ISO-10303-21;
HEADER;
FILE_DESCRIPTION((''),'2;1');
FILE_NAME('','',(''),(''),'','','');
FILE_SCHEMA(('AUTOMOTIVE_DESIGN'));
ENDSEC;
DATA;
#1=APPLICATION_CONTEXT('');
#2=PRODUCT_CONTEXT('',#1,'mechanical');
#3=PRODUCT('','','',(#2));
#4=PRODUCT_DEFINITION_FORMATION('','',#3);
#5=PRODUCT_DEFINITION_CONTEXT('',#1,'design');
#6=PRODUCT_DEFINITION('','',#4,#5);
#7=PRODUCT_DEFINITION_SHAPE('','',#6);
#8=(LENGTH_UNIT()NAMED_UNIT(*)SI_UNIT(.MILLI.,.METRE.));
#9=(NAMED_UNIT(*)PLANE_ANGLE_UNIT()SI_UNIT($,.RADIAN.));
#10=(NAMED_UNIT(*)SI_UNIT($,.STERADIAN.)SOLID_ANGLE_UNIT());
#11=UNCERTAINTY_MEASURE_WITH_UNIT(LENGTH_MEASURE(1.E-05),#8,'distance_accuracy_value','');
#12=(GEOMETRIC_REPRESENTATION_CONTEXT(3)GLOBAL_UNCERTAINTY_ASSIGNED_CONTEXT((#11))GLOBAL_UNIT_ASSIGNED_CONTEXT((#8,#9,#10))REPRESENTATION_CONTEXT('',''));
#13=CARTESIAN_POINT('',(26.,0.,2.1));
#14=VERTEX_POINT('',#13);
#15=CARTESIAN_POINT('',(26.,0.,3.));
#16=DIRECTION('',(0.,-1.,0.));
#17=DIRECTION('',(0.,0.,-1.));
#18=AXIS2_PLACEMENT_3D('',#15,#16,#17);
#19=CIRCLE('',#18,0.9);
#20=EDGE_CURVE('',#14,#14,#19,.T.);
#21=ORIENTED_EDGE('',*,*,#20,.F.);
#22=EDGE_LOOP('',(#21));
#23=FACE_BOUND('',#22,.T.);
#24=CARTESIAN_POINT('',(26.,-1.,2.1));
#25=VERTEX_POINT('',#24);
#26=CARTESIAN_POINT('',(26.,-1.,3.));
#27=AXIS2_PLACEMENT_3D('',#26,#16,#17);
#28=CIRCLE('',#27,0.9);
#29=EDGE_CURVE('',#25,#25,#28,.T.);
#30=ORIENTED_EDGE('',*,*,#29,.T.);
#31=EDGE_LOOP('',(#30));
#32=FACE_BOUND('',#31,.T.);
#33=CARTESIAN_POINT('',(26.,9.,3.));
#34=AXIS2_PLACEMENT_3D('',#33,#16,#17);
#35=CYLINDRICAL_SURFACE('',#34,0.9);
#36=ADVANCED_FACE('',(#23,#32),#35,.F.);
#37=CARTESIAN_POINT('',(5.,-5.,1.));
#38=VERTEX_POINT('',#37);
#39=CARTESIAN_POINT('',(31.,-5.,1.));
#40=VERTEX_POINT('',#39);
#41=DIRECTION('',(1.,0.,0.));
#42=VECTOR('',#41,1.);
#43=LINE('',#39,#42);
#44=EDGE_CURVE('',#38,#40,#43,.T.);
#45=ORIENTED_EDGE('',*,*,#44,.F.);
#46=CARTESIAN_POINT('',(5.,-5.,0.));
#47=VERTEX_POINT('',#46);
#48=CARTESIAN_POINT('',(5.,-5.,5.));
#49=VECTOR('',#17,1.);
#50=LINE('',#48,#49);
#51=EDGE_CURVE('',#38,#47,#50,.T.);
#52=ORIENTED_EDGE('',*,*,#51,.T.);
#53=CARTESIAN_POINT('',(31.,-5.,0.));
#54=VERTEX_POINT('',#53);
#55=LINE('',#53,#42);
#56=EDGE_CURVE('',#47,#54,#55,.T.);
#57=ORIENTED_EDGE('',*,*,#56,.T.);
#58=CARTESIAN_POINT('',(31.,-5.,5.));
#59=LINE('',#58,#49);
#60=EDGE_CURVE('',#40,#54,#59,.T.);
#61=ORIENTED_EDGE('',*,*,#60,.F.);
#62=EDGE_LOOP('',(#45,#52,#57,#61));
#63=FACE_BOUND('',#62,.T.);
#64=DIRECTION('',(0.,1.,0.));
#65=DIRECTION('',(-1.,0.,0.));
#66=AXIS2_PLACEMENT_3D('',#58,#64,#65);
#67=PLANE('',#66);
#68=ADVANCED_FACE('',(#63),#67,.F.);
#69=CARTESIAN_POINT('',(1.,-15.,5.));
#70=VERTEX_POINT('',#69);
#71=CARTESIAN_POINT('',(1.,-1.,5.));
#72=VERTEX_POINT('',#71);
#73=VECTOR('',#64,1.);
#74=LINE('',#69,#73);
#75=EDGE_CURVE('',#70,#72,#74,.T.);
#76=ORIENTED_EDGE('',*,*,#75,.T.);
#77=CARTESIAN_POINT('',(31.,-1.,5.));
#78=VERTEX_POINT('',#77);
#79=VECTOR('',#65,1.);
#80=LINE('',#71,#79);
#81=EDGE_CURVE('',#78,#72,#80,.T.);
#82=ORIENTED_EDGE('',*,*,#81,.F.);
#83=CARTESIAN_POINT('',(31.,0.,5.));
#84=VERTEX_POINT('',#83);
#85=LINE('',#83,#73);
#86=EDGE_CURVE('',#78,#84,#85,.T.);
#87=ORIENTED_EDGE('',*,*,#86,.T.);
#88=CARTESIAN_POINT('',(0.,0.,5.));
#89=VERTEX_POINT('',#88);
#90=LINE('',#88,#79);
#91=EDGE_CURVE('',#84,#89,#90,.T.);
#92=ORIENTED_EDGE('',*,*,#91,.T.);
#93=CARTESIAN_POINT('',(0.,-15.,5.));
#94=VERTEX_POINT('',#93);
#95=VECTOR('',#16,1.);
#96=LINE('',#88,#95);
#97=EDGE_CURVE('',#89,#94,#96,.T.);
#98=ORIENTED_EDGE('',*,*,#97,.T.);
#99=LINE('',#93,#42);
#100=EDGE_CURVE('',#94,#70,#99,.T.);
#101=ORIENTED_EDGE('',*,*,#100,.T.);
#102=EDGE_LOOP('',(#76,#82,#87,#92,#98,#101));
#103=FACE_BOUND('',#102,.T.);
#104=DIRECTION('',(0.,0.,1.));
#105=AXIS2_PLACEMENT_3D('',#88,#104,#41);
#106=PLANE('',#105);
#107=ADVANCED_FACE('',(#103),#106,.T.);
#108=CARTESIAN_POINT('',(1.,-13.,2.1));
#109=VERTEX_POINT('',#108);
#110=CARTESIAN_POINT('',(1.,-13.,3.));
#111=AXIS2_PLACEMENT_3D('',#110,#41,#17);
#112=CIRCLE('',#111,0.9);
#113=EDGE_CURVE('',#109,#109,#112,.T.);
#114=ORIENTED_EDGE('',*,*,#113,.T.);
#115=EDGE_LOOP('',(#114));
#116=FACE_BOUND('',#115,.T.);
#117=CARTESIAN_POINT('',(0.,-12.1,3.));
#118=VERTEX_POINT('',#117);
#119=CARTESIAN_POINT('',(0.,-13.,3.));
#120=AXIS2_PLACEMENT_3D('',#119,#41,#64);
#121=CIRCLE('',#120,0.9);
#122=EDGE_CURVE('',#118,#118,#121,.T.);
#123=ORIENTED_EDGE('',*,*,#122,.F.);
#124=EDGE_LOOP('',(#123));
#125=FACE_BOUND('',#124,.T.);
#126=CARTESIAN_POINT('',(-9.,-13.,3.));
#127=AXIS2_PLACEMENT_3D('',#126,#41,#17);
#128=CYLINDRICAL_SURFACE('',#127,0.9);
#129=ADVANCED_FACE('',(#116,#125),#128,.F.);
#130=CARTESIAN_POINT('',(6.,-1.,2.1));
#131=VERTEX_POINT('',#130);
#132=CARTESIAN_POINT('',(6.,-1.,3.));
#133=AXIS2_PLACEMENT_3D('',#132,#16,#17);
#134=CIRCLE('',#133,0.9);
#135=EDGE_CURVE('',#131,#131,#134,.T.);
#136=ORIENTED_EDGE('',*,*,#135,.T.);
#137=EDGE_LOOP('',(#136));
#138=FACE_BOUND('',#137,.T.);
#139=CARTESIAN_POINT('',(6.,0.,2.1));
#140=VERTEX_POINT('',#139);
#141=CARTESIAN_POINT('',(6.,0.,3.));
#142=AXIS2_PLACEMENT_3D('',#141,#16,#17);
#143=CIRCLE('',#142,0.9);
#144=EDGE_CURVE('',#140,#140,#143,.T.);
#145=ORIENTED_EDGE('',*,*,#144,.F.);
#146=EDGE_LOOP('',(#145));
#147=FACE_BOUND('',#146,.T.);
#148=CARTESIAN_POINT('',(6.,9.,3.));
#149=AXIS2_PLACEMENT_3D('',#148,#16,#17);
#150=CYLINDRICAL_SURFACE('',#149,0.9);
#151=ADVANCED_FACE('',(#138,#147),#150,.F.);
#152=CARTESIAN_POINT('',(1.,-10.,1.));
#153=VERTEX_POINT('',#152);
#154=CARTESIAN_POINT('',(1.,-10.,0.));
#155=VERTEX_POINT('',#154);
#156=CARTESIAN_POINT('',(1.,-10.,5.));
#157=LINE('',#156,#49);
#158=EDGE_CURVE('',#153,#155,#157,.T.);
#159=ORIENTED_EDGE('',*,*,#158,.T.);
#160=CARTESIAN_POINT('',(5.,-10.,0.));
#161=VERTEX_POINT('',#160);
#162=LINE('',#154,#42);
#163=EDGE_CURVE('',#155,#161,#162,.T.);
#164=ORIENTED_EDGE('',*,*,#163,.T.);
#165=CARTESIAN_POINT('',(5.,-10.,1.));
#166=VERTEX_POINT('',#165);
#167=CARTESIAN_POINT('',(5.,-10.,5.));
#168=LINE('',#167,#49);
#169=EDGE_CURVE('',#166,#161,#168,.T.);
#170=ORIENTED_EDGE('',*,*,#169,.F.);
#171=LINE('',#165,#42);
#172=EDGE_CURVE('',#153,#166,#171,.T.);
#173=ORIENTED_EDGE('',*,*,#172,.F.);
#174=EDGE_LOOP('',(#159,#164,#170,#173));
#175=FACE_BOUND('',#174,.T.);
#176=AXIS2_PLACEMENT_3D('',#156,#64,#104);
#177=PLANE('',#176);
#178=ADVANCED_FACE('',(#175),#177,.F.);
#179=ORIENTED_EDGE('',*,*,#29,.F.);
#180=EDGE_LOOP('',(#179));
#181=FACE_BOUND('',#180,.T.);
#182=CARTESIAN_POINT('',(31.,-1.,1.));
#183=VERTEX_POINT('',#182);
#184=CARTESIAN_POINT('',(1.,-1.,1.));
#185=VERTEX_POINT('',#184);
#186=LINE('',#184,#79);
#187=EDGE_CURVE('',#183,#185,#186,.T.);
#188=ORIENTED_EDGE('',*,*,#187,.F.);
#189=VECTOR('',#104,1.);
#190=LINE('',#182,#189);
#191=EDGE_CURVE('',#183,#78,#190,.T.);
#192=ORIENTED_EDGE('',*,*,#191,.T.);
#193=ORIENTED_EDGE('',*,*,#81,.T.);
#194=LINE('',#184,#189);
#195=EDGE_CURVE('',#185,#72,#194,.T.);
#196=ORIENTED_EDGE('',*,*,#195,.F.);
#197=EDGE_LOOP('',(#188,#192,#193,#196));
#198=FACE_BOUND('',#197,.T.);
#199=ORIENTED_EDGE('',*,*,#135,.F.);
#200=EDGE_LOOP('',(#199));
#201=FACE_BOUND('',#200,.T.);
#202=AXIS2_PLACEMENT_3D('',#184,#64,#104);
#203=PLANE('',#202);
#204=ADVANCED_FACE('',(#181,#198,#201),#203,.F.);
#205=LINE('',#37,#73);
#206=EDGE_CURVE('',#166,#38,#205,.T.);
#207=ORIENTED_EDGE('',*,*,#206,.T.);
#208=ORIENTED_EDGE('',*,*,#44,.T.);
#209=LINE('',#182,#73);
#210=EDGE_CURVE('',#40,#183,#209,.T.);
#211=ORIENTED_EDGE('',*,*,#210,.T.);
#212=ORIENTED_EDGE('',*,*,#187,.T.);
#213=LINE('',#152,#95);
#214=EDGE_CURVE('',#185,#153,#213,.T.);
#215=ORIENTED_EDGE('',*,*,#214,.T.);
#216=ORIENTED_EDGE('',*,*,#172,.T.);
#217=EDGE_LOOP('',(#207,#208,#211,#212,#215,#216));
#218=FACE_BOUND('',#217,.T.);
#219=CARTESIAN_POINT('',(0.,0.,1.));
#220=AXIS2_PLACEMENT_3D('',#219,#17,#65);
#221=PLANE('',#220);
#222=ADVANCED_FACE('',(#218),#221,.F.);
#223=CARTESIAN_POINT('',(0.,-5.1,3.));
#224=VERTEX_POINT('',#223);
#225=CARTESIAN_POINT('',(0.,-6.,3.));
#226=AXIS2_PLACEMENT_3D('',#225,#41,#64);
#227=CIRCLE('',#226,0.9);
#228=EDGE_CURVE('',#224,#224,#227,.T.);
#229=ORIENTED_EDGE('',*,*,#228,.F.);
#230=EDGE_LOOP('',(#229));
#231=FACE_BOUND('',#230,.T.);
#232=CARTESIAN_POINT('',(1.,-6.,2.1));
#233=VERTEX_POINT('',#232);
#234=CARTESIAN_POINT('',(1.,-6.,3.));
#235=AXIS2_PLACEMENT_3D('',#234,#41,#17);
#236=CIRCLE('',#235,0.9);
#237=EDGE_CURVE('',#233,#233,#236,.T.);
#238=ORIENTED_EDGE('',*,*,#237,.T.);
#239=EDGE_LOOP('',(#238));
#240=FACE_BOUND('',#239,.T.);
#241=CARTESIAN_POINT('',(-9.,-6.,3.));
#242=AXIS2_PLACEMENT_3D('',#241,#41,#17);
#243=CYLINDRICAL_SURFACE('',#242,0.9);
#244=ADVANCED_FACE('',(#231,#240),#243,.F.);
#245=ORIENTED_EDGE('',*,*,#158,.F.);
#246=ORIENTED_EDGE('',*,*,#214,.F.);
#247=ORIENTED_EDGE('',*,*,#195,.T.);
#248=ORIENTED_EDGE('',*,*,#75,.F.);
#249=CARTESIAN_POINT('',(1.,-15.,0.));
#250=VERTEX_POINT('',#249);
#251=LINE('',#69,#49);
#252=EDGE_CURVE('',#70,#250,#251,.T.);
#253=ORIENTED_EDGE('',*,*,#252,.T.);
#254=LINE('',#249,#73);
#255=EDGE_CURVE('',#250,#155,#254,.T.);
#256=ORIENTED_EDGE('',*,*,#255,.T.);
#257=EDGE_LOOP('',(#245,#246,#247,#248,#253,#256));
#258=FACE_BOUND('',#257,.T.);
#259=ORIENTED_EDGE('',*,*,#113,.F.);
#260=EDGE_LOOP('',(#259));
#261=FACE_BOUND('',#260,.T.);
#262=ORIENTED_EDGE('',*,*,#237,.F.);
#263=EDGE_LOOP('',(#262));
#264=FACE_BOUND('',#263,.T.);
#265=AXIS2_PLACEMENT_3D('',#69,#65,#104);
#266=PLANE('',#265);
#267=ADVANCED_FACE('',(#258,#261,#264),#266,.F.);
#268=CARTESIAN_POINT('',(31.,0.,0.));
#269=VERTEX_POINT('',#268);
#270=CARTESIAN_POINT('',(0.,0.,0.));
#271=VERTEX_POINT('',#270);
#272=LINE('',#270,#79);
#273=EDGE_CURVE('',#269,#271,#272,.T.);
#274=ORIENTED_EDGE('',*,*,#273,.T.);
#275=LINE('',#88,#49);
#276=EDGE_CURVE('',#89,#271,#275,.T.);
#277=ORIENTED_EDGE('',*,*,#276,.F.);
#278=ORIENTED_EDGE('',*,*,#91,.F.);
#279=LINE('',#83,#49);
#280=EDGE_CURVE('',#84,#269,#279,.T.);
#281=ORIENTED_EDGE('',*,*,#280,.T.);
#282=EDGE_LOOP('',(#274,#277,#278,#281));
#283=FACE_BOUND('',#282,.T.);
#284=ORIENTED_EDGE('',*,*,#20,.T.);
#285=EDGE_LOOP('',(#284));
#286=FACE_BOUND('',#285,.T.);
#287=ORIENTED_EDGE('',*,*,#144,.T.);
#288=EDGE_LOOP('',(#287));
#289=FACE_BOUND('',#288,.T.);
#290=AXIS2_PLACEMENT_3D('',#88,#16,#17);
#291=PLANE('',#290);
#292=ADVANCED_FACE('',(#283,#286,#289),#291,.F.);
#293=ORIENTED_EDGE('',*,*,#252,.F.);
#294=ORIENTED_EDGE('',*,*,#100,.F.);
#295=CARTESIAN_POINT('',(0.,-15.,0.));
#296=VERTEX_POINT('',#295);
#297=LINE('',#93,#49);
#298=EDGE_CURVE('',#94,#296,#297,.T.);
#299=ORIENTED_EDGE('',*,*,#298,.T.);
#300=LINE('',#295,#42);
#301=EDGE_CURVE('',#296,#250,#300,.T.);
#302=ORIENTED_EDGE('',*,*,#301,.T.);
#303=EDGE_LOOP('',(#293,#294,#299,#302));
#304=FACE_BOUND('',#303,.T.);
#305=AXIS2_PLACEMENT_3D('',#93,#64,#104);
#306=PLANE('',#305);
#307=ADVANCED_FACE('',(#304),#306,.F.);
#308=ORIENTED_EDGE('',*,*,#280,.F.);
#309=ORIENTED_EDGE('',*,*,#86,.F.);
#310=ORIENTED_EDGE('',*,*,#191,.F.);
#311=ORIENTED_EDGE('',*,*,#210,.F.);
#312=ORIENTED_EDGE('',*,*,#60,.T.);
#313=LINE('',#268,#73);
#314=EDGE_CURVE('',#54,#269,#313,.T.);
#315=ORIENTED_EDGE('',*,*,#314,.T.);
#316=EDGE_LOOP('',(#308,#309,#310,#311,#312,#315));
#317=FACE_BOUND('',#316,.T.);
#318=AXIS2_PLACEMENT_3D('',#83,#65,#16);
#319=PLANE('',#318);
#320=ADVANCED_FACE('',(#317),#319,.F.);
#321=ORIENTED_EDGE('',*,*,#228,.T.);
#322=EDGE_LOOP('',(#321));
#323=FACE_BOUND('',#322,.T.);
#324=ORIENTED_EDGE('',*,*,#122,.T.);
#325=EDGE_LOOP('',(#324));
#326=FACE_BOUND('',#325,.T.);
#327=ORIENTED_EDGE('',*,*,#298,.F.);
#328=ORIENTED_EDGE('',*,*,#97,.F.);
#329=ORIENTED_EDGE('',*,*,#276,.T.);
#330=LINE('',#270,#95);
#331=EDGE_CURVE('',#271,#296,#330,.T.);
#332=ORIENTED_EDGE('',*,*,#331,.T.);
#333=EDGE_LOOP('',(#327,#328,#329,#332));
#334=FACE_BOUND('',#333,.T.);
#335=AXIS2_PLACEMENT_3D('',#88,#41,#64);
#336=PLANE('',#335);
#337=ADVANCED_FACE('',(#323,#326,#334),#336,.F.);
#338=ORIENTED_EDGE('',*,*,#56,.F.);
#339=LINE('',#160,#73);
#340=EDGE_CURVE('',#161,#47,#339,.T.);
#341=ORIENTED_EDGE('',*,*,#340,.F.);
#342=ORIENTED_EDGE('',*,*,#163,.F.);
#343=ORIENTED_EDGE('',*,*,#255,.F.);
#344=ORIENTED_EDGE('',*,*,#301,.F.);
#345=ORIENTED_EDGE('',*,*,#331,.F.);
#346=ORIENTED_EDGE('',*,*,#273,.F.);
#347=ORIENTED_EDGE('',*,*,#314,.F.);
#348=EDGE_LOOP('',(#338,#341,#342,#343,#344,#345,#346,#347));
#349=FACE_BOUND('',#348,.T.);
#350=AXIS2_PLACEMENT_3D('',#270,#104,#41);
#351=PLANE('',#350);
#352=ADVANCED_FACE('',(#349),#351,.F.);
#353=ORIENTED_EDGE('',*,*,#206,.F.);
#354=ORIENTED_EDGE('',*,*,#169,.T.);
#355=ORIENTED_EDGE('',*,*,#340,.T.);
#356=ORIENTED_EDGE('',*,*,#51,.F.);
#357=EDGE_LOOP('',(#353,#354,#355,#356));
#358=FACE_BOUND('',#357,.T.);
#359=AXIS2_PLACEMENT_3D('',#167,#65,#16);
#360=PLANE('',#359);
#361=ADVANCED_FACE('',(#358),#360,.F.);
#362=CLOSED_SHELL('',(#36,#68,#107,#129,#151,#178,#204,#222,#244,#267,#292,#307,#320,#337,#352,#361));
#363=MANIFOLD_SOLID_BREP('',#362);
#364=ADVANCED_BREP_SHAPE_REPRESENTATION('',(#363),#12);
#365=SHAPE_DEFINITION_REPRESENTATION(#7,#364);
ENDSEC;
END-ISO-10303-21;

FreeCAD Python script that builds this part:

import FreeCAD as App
import Part
import Sketcher
from FreeCAD import Vector


def add_polygon(sketch, points):
    """Adds a closed chain of lines whose ends are joined by coincident constraints."""
    first, n = sketch.GeometryCount, len(points)
    for a, b in zip(points, points[1:] + points[:1]):
        sketch.addGeometry(Part.LineSegment(App.Vector(*a, 0), App.Vector(*b, 0)), False)
    for i in range(n):
        sketch.addConstraint(Sketcher.Constraint("Coincident", first + i, 2, first + (i + 1) % n, 1))

doc = App.newDocument("Part")
params = doc.addObject("Spreadsheet::Sheet", "Params")
for row, (alias, value) in enumerate([
    ("sketch1_width", "31 mm"),
    ("sketch1_width2", "1 mm"),
    ("sketch1_width3", "4 mm"),
    ("sketch1_height", "15 mm"),
    ("pad1_length", "5 mm"),
    ("sketch2_width", "4 mm"),
    ("sketch2_width2", "26 mm"),
    ("sketch2_height", "9 mm"),
    ("pocket1_length", "4 mm"),
    ("sketch3_diameter", "1.8 mm"),
    ("pocket2_length", "10 mm"),
    ("sketch4_diameter", "1.8 mm"),
    ("pocket3_length", "10 mm"),
], start=1):
    params.set(f"A{row}", alias)
    params.set(f"B{row}", "=" + value)
    params.setAlias(f"B{row}", alias)

body = doc.addObject("PartDesign::Body", "Body")

# Sketch on XY plane
sketch1 = doc.addObject("Sketcher::SketchObject", "Sketch")
body.addObject(sketch1)
sketch1.AttachmentSupport = (doc.XY_Plane, [""])
sketch1.MapMode = "FlatFace"
add_polygon(sketch1, [(31, 0), (0, 0), (0, -15), (1, -15), (1, -10), (5, -10), (5, -5), (31, -5)])  # lines 0-7
sketch1.addConstraint([
    Sketcher.Constraint("Horizontal", 0),
    Sketcher.Constraint("Vertical", 1),
    Sketcher.Constraint("Horizontal", 2),
    Sketcher.Constraint("Vertical", 3),
    Sketcher.Constraint("Horizontal", 4),
    Sketcher.Constraint("Vertical", 5),
    Sketcher.Constraint("Horizontal", 6),
    Sketcher.Constraint("Vertical", 7),
    Sketcher.Constraint("Coincident", 0, 2, -1, 1),
    Sketcher.Constraint("Equal", 3, 5),
    Sketcher.Constraint("Equal", 5, 7),
    Sketcher.Constraint("DistanceX", 0, 2, 0, 1, 31.0),
    Sketcher.Constraint("DistanceX", 2, 1, 2, 2, 1.0),
    Sketcher.Constraint("DistanceX", 4, 1, 4, 2, 4.0),
    Sketcher.Constraint("DistanceY", 1, 2, 1, 1, 15.0),
])
sketch1.setExpression("Constraints[19]", "Params.sketch1_width")
sketch1.setExpression("Constraints[20]", "Params.sketch1_width2")
sketch1.setExpression("Constraints[21]", "Params.sketch1_width3")
sketch1.setExpression("Constraints[22]", "Params.sketch1_height")
pad1 = doc.addObject("PartDesign::Pad", "Pad")
body.addObject(pad1)
pad1.Profile = sketch1
pad1.setExpression("Length", "Params.pad1_length")

# Sketch on XY plane
sketch2 = doc.addObject("Sketcher::SketchObject", "Sketch001")
body.addObject(sketch2)
sketch2.AttachmentSupport = (doc.XY_Plane, [""])
sketch2.MapMode = "FlatFace"
sketch2.AttachmentOffset = App.Placement(Vector(0, 0, 5), App.Rotation())
add_polygon(sketch2, [(1, -1), (1, -10), (5, -10), (5, -5), (31, -5), (31, -1)])  # lines 0-5
sketch2.addConstraint([
    Sketcher.Constraint("Vertical", 0),
    Sketcher.Constraint("Horizontal", 1),
    Sketcher.Constraint("Vertical", 2),
    Sketcher.Constraint("Horizontal", 3),
    Sketcher.Constraint("Vertical", 4),
    Sketcher.Constraint("Horizontal", 5),
    Sketcher.Constraint("Equal", 1, 4),
    Sketcher.Constraint("DistanceX", 1, 1, 1, 2, 4.0),
    Sketcher.Constraint("DistanceX", 3, 1, 3, 2, 26.0),
    Sketcher.Constraint("DistanceY", 0, 2, 0, 1, 9.0),
    Sketcher.Constraint("DistanceX", -1, 1, 0, 2, 1.0),
    Sketcher.Constraint("DistanceY", 0, 2, -1, 1, 10.0),
])
sketch2.setExpression("Constraints[13]", "Params.sketch2_width")
sketch2.setExpression("Constraints[14]", "Params.sketch2_width2")
sketch2.setExpression("Constraints[15]", "Params.sketch2_height")
pocket1 = doc.addObject("PartDesign::Pocket", "Pocket")
body.addObject(pocket1)
pocket1.Profile = sketch2
pocket1.setExpression("Length", "Params.pocket1_length")

# Sketch on YZ plane
sketch3 = doc.addObject("Sketcher::SketchObject", "Sketch002")
body.addObject(sketch3)
sketch3.AttachmentSupport = (doc.YZ_Plane, [""])
sketch3.MapMode = "FlatFace"
sketch3.AttachmentOffset = App.Placement(Vector(0, 0, 1), App.Rotation())
sketch3.addGeometry([
    Part.Circle(Vector(-6, 3, 0), Vector(0, 0, 1), 0.9),
    Part.Circle(Vector(-13, 3, 0), Vector(0, 0, 1), 0.9),
], False)
sketch3.addConstraint([
    Sketcher.Constraint("Equal", 0, 1),
    Sketcher.Constraint("Horizontal", 0, 3, 1, 3),
    Sketcher.Constraint("Diameter", 0, 1.8),
    Sketcher.Constraint("DistanceX", 0, 3, -1, 1, 6.0),
    Sketcher.Constraint("DistanceY", -1, 1, 0, 3, 3.0),
    Sketcher.Constraint("DistanceX", 1, 3, -1, 1, 13.0),
])
sketch3.setExpression("Constraints[2]", "Params.sketch3_diameter")
pocket2 = doc.addObject("PartDesign::Pocket", "Pocket001")
body.addObject(pocket2)
pocket2.Profile = sketch3
pocket2.setExpression("Length", "Params.pocket2_length")

# Sketch on XZ plane
sketch4 = doc.addObject("Sketcher::SketchObject", "Sketch003")
body.addObject(sketch4)
sketch4.AttachmentSupport = (doc.XZ_Plane, [""])
sketch4.MapMode = "FlatFace"
sketch4.AttachmentOffset = App.Placement(Vector(0, 0, 1), App.Rotation())
sketch4.addGeometry([
    Part.Circle(Vector(6, 3, 0), Vector(0, 0, 1), 0.9),
    Part.Circle(Vector(26, 3, 0), Vector(0, 0, 1), 0.9),
], False)
sketch4.addConstraint([
    Sketcher.Constraint("Equal", 0, 1),
    Sketcher.Constraint("Horizontal", 0, 3, 1, 3),
    Sketcher.Constraint("Diameter", 0, 1.8),
    Sketcher.Constraint("DistanceX", -1, 1, 0, 3, 6.0),
    Sketcher.Constraint("DistanceY", -1, 1, 0, 3, 3.0),
    Sketcher.Constraint("DistanceX", -1, 1, 1, 3, 26.0),
])
sketch4.setExpression("Constraints[2]", "Params.sketch4_diameter")
pocket3 = doc.addObject("PartDesign::Pocket", "Pocket002")
body.addObject(pocket3)
pocket3.Profile = sketch4
pocket3.setExpression("Length", "Params.pocket3_length")

doc.recompute()
